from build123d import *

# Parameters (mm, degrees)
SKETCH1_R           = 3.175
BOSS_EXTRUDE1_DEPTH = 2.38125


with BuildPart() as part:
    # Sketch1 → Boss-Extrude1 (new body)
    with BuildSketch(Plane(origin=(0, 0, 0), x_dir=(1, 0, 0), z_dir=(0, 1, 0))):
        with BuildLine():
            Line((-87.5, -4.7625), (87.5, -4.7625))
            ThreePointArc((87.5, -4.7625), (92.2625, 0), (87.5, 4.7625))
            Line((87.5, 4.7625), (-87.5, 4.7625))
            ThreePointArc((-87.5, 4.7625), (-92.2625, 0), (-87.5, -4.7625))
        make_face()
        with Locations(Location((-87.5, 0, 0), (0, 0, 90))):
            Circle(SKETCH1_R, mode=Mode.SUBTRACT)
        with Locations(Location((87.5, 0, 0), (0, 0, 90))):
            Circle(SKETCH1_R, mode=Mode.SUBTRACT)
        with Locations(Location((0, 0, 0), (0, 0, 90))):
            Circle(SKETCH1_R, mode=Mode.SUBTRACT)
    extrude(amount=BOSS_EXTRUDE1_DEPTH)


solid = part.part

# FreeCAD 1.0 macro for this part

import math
import FreeCAD as App
import Part
import Sketcher
Q = App.Units.Quantity

doc = App.newDocument("Part")
body = doc.addObject("PartDesign::Body", "Body")

sketch1 = body.newObject("Sketcher::SketchObject", "Sketch")
sketch1.AttachmentSupport = (doc.getObject("XZ_Plane"), [""])
sketch1.MapMode = "FlatFace"
sketch1.addGeometry(Part.LineSegment(App.Vector(-87.5, 4.8, 0), App.Vector(87.5, 4.8, 0)), False)
sketch1.addGeometry(Part.ArcOfCircle(Part.Circle(App.Vector(87.5, 0, 0), App.Vector(0, 0, 1), 4.8), math.radians(-90), math.radians(90)), False)
sketch1.addGeometry(Part.LineSegment(App.Vector(87.5, -4.8, 0), App.Vector(-87.5, -4.8, 0)), False)
sketch1.addGeometry(Part.ArcOfCircle(Part.Circle(App.Vector(-87.5, 0, 0), App.Vector(0, 0, 1), 4.8), math.radians(90), math.radians(270)), False)
sketch1.addGeometry(Part.Circle(App.Vector(-87.5, 0, 0), App.Vector(0, 0, 1), 3.2), False)
sketch1.addGeometry(Part.Circle(App.Vector(0, 0, 0), App.Vector(0, 0, 1), 3.2), False)
sketch1.addGeometry(Part.Circle(App.Vector(87.5, 0, 0), App.Vector(0, 0, 1), 3.2), False)
sketch1.addConstraint(Sketcher.Constraint("Tangent", 0, 2, 1, 2))
sketch1.addConstraint(Sketcher.Constraint("Tangent", 1, 1, 2, 1))
sketch1.addConstraint(Sketcher.Constraint("Tangent", 2, 2, 3, 2))
sketch1.addConstraint(Sketcher.Constraint("Tangent", 3, 1, 0, 1))
sketch1.addConstraint(Sketcher.Constraint("Horizontal", 0))
sketch1.addConstraint(Sketcher.Constraint("Horizontal", 2))
sketch1.addConstraint(Sketcher.Constraint("Coincident", 5, 3, -1, 1))
sketch1.addConstraint(Sketcher.Constraint("Coincident", 4, 3, 3, 3))
sketch1.addConstraint(Sketcher.Constraint("Coincident", 6, 3, 1, 3))
sketch1.addConstraint(Sketcher.Constraint("Equal", 4, 5))
sketch1.addConstraint(Sketcher.Constraint("Equal", 5, 6))
sketch1.addConstraint(Sketcher.Constraint("Symmetric", 1, 3, 3, 3, -1, 1))
sketch1.addConstraint(Sketcher.Constraint("Diameter", 4, Q("0.25 in")))
sketch1.addConstraint(Sketcher.Constraint("Radius", 1, Q("0.1875 in")))
sketch1.addConstraint(Sketcher.Constraint("DistanceX", 0, 1, 0, 2, Q("175 mm")))
pad1 = body.newObject("PartDesign::Pad", "Pad")
pad1.Profile = sketch1
pad1.Length = Q("0.09375 in")
pad1.Reversed = True

doc.recompute()
